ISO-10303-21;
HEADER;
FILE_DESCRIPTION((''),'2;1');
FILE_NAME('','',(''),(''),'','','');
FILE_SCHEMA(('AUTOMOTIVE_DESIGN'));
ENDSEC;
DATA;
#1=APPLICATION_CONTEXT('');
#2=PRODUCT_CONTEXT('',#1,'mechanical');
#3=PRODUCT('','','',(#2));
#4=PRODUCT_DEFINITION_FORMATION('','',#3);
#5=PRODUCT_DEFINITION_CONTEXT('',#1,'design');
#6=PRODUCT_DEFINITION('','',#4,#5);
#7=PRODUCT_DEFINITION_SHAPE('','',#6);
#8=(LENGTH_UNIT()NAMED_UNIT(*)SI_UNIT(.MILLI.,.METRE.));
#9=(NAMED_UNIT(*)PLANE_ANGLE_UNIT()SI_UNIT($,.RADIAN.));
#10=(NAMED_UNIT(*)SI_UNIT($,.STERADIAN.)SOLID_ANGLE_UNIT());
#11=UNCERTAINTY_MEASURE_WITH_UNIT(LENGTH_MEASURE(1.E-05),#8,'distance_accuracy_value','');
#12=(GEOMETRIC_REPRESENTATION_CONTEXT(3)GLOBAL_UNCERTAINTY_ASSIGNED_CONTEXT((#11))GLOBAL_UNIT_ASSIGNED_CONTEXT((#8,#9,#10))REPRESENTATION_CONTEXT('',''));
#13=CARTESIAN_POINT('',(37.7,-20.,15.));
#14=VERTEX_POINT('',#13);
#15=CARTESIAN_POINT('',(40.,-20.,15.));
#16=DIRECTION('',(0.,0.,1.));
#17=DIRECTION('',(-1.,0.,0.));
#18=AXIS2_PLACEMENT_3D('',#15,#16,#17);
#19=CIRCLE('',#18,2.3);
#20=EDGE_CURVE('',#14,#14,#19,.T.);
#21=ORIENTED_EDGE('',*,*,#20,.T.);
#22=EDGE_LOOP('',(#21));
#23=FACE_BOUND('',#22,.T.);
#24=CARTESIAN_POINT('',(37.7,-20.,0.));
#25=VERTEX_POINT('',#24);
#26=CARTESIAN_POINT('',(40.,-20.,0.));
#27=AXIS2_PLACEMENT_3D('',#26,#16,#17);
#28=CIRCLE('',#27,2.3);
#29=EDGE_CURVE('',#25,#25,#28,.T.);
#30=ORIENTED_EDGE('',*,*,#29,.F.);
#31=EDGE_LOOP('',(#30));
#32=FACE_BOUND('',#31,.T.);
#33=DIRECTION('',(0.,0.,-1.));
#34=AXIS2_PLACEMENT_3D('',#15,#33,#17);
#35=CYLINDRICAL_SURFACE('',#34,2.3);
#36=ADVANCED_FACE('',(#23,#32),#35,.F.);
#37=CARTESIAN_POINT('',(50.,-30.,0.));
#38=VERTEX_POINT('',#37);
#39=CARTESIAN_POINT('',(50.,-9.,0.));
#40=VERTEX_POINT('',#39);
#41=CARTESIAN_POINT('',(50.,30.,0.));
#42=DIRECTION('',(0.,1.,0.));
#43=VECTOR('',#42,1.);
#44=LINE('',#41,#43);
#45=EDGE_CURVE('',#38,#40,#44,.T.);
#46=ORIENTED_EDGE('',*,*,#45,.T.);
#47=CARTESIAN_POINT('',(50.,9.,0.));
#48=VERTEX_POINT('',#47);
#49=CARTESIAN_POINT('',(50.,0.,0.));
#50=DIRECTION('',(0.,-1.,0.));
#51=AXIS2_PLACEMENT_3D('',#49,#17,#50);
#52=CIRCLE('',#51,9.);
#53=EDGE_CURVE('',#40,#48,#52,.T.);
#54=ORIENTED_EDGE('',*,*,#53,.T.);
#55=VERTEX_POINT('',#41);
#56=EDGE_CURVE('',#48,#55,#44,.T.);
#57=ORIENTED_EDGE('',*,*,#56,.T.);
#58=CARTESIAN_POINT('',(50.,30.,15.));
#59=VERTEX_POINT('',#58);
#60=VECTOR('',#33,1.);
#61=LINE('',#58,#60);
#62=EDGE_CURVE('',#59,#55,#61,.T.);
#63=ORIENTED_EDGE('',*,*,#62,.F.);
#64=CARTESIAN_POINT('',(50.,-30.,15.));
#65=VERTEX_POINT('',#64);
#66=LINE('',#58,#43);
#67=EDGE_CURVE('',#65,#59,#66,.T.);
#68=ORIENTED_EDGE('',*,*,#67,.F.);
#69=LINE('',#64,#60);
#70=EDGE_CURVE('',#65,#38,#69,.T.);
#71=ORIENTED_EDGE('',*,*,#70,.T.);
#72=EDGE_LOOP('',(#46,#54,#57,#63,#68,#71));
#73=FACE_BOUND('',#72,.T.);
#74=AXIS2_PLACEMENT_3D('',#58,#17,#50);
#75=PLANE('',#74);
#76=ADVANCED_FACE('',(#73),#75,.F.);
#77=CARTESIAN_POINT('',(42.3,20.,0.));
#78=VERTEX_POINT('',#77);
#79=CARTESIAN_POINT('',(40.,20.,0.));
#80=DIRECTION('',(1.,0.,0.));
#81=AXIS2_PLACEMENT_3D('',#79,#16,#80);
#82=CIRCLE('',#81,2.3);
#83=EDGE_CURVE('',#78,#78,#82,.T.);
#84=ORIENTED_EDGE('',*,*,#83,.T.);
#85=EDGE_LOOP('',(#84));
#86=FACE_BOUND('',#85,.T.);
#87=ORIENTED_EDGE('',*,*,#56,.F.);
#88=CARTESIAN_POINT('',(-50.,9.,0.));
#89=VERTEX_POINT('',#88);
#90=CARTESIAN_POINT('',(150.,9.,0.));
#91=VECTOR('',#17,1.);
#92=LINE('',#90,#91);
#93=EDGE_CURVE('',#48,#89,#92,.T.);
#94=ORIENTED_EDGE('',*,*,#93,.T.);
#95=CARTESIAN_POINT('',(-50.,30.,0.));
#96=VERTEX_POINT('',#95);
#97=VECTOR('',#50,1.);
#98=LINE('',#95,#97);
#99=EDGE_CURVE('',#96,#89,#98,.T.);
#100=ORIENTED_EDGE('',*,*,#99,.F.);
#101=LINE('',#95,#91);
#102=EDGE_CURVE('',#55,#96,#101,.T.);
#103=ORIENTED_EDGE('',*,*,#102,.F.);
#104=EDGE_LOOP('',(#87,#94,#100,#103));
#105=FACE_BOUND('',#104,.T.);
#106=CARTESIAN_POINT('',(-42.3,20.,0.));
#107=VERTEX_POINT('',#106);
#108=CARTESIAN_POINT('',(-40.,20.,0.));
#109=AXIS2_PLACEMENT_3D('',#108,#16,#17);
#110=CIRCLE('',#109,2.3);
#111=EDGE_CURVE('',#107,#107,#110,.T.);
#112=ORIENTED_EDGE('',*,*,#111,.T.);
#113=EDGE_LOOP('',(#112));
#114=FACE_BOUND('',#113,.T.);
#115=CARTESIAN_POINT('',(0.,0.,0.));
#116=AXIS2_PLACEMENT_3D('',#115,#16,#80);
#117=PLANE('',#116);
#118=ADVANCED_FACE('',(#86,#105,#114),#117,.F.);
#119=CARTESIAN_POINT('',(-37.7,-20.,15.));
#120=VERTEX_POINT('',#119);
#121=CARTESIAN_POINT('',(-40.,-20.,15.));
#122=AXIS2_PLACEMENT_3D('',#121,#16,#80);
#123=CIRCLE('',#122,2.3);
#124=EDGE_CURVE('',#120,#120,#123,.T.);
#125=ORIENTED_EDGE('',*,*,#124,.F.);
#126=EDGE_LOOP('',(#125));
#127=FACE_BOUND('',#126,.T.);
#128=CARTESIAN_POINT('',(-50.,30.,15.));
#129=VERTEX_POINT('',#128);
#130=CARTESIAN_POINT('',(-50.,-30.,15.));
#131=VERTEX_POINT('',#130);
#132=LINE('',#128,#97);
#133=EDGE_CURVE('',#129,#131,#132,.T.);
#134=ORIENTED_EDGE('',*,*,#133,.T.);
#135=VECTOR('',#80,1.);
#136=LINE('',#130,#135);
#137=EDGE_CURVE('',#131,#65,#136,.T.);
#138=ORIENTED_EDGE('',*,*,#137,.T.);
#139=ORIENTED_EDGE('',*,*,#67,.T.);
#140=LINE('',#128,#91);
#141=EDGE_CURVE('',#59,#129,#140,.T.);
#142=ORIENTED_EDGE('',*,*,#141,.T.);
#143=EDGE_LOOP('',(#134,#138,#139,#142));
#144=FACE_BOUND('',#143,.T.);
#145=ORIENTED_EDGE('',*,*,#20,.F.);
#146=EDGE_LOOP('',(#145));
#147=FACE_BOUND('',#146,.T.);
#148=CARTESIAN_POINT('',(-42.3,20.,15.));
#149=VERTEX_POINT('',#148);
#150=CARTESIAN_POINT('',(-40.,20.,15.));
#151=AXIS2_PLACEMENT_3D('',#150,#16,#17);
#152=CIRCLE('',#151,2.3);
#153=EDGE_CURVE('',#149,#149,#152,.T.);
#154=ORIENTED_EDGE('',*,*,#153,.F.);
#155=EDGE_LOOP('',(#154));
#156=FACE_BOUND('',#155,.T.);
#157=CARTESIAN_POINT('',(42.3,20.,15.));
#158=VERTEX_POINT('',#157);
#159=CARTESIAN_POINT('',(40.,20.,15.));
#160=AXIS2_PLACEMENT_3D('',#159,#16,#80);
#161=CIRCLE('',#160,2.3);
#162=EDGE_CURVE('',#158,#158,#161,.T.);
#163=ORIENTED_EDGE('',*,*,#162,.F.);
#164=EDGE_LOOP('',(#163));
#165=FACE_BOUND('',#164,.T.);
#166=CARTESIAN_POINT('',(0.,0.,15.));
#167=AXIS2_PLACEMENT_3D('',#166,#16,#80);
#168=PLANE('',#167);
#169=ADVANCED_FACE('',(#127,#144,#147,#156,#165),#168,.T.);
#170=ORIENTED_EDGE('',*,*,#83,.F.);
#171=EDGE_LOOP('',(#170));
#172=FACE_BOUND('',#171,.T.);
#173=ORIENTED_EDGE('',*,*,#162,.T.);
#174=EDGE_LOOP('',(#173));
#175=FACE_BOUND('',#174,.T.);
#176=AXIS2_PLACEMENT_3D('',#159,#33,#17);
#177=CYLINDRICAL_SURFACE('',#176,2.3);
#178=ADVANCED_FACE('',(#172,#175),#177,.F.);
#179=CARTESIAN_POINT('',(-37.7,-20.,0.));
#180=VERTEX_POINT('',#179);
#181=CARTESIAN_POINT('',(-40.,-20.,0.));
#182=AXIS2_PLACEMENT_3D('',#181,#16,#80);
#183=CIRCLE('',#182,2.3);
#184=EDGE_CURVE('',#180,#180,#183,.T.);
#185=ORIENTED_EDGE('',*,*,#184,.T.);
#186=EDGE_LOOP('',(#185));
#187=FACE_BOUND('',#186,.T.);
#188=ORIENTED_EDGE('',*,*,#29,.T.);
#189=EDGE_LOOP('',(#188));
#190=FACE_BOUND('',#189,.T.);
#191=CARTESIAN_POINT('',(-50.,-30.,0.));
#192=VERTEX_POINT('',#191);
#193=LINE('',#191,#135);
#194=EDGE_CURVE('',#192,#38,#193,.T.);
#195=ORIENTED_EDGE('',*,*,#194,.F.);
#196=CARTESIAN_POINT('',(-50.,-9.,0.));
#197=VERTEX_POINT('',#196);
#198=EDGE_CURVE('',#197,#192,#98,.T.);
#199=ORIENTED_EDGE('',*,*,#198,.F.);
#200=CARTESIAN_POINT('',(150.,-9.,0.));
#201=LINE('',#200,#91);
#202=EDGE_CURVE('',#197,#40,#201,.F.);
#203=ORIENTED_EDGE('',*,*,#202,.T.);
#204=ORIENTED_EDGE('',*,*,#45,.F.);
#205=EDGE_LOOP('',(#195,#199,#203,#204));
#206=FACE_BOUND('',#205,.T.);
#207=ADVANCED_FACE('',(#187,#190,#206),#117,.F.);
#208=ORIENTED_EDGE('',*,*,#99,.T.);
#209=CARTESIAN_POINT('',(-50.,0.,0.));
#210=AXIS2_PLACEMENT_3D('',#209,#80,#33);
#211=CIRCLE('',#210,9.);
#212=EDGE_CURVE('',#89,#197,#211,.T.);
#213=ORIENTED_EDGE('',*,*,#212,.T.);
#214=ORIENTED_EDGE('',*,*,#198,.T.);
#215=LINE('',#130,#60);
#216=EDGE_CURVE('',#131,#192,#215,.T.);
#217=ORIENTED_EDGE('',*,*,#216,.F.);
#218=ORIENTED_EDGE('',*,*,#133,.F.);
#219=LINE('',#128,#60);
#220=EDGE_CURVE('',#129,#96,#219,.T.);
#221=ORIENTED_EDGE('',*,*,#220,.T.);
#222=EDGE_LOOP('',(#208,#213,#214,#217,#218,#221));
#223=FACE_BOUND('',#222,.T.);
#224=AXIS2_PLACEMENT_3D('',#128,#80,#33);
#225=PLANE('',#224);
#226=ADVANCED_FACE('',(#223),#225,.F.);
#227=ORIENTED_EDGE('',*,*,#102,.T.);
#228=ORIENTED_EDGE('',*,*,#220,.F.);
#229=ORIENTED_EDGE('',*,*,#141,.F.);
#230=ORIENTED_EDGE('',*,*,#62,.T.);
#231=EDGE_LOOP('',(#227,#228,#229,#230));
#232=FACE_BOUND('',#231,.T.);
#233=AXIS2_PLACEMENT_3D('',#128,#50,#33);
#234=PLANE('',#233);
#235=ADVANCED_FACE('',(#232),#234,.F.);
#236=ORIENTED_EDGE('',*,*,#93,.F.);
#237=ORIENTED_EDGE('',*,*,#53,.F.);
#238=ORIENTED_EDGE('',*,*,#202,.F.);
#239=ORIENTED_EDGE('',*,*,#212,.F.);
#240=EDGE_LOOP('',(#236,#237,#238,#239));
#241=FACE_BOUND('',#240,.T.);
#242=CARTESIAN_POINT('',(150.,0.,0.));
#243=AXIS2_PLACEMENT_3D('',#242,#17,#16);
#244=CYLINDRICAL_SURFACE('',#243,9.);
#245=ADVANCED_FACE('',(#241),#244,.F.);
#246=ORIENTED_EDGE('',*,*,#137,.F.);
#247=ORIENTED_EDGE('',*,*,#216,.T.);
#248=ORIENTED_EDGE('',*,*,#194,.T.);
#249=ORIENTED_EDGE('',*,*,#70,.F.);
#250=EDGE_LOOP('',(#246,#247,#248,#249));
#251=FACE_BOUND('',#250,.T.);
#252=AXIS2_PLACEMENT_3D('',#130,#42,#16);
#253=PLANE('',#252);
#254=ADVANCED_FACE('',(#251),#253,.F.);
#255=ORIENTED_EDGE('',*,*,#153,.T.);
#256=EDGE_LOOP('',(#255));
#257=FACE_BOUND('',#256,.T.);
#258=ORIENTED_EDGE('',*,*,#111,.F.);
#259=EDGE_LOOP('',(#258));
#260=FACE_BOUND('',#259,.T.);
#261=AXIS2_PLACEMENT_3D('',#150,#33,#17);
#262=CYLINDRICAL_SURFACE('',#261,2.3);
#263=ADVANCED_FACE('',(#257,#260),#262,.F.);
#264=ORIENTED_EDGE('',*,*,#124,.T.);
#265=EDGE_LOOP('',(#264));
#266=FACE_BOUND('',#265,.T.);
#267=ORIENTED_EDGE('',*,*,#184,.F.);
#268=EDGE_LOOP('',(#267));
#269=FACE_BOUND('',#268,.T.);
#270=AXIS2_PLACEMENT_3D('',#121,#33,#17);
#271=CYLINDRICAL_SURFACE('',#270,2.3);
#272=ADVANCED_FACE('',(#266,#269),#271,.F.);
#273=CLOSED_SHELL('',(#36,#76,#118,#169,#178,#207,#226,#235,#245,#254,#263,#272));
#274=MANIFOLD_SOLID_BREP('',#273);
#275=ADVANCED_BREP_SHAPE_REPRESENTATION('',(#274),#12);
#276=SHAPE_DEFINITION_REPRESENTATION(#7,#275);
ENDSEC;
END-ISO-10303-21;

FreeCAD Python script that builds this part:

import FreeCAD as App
import Part
import Sketcher
from FreeCAD import Vector


def add_polygon(sketch, points):
    """Adds a closed chain of lines whose ends are joined by coincident constraints."""
    first, n = sketch.GeometryCount, len(points)
    for a, b in zip(points, points[1:] + points[:1]):
        sketch.addGeometry(Part.LineSegment(App.Vector(*a, 0), App.Vector(*b, 0)), False)
    for i in range(n):
        sketch.addConstraint(Sketcher.Constraint("Coincident", first + i, 2, first + (i + 1) % n, 1))

doc = App.newDocument("Part")
body = doc.addObject("PartDesign::Body", "Body")

# Sketch on XY plane
sketch1 = body.newObject("Sketcher::SketchObject", "Sketch")
sketch1.AttachmentSupport = (doc.getObject("XY_Plane"), [""])
sketch1.MapMode = "FlatFace"
add_polygon(sketch1, [(-50, 30), (-50, -30), (50, -30), (50, 30)])  # lines 0-3
sketch1.addGeometry(Part.Circle(Vector(-40, -20, 0), Vector(0, 0, 1), 2.3), False)  # 4
sketch1.addGeometry(Part.Circle(Vector(40, -20, 0), Vector(0, 0, 1), 2.3), False)  # 5
sketch1.addGeometry(Part.Circle(Vector(-40, 20, 0), Vector(0, 0, 1), 2.3), False)  # 6
sketch1.addGeometry(Part.Circle(Vector(40, 20, 0), Vector(0, 0, 1), 2.3), False)  # 7
sketch1.addConstraint(Sketcher.Constraint("Vertical", 0))
sketch1.addConstraint(Sketcher.Constraint("Horizontal", 1))
sketch1.addConstraint(Sketcher.Constraint("Vertical", 2))
sketch1.addConstraint(Sketcher.Constraint("Horizontal", 3))
sketch1.addConstraint(Sketcher.Constraint("Equal", 4, 5))
sketch1.addConstraint(Sketcher.Constraint("Equal", 5, 6))
sketch1.addConstraint(Sketcher.Constraint("Equal", 6, 7))
sketch1.addConstraint(Sketcher.Constraint("Symmetric", 5, 3, 6, 3, -1, 1))
sketch1.addConstraint(Sketcher.Constraint("Symmetric", 4, 3, 7, 3, -1, 1))
sketch1.addConstraint(Sketcher.Constraint("Symmetric", 0, 2, 2, 2, -1, 1))
sketch1.addConstraint(Sketcher.Constraint("Symmetric", 4, 3, 5, 3, -2))
sketch1.addConstraint(Sketcher.Constraint("Diameter", 4, 4.6))
sketch1.addConstraint(Sketcher.Constraint("DistanceX", 1, 1, 1, 2, 100.0))
sketch1.addConstraint(Sketcher.Constraint("DistanceY", 0, 2, 0, 1, 60.0))
sketch1.addConstraint(Sketcher.Constraint("DistanceX", 4, 3, -1, 1, 40.0))
sketch1.addConstraint(Sketcher.Constraint("DistanceY", 4, 3, -1, 1, 20.0))
pad1 = body.newObject("PartDesign::Pad", "Pad")
pad1.Profile = sketch1
pad1.Length = 15

# Sketch on YZ plane
sketch2 = body.newObject("Sketcher::SketchObject", "Sketch001")
sketch2.AttachmentSupport = (doc.getObject("YZ_Plane"), [""])
sketch2.MapMode = "FlatFace"
sketch2.AttachmentOffset = App.Placement(Vector(0, 0, -50), App.Rotation())
sketch2.addGeometry(Part.Circle(Vector(0, 0, 0), Vector(0, 0, 1), 9), False)
sketch2.addConstraint(Sketcher.Constraint("Coincident", 0, 3, -1, 1))
sketch2.addConstraint(Sketcher.Constraint("Diameter", 0, 18.0))
pocket1 = body.newObject("PartDesign::Pocket", "Pocket")
pocket1.Profile = sketch2
pocket1.Length = 400
pocket1.Midplane = True

doc.recompute()
